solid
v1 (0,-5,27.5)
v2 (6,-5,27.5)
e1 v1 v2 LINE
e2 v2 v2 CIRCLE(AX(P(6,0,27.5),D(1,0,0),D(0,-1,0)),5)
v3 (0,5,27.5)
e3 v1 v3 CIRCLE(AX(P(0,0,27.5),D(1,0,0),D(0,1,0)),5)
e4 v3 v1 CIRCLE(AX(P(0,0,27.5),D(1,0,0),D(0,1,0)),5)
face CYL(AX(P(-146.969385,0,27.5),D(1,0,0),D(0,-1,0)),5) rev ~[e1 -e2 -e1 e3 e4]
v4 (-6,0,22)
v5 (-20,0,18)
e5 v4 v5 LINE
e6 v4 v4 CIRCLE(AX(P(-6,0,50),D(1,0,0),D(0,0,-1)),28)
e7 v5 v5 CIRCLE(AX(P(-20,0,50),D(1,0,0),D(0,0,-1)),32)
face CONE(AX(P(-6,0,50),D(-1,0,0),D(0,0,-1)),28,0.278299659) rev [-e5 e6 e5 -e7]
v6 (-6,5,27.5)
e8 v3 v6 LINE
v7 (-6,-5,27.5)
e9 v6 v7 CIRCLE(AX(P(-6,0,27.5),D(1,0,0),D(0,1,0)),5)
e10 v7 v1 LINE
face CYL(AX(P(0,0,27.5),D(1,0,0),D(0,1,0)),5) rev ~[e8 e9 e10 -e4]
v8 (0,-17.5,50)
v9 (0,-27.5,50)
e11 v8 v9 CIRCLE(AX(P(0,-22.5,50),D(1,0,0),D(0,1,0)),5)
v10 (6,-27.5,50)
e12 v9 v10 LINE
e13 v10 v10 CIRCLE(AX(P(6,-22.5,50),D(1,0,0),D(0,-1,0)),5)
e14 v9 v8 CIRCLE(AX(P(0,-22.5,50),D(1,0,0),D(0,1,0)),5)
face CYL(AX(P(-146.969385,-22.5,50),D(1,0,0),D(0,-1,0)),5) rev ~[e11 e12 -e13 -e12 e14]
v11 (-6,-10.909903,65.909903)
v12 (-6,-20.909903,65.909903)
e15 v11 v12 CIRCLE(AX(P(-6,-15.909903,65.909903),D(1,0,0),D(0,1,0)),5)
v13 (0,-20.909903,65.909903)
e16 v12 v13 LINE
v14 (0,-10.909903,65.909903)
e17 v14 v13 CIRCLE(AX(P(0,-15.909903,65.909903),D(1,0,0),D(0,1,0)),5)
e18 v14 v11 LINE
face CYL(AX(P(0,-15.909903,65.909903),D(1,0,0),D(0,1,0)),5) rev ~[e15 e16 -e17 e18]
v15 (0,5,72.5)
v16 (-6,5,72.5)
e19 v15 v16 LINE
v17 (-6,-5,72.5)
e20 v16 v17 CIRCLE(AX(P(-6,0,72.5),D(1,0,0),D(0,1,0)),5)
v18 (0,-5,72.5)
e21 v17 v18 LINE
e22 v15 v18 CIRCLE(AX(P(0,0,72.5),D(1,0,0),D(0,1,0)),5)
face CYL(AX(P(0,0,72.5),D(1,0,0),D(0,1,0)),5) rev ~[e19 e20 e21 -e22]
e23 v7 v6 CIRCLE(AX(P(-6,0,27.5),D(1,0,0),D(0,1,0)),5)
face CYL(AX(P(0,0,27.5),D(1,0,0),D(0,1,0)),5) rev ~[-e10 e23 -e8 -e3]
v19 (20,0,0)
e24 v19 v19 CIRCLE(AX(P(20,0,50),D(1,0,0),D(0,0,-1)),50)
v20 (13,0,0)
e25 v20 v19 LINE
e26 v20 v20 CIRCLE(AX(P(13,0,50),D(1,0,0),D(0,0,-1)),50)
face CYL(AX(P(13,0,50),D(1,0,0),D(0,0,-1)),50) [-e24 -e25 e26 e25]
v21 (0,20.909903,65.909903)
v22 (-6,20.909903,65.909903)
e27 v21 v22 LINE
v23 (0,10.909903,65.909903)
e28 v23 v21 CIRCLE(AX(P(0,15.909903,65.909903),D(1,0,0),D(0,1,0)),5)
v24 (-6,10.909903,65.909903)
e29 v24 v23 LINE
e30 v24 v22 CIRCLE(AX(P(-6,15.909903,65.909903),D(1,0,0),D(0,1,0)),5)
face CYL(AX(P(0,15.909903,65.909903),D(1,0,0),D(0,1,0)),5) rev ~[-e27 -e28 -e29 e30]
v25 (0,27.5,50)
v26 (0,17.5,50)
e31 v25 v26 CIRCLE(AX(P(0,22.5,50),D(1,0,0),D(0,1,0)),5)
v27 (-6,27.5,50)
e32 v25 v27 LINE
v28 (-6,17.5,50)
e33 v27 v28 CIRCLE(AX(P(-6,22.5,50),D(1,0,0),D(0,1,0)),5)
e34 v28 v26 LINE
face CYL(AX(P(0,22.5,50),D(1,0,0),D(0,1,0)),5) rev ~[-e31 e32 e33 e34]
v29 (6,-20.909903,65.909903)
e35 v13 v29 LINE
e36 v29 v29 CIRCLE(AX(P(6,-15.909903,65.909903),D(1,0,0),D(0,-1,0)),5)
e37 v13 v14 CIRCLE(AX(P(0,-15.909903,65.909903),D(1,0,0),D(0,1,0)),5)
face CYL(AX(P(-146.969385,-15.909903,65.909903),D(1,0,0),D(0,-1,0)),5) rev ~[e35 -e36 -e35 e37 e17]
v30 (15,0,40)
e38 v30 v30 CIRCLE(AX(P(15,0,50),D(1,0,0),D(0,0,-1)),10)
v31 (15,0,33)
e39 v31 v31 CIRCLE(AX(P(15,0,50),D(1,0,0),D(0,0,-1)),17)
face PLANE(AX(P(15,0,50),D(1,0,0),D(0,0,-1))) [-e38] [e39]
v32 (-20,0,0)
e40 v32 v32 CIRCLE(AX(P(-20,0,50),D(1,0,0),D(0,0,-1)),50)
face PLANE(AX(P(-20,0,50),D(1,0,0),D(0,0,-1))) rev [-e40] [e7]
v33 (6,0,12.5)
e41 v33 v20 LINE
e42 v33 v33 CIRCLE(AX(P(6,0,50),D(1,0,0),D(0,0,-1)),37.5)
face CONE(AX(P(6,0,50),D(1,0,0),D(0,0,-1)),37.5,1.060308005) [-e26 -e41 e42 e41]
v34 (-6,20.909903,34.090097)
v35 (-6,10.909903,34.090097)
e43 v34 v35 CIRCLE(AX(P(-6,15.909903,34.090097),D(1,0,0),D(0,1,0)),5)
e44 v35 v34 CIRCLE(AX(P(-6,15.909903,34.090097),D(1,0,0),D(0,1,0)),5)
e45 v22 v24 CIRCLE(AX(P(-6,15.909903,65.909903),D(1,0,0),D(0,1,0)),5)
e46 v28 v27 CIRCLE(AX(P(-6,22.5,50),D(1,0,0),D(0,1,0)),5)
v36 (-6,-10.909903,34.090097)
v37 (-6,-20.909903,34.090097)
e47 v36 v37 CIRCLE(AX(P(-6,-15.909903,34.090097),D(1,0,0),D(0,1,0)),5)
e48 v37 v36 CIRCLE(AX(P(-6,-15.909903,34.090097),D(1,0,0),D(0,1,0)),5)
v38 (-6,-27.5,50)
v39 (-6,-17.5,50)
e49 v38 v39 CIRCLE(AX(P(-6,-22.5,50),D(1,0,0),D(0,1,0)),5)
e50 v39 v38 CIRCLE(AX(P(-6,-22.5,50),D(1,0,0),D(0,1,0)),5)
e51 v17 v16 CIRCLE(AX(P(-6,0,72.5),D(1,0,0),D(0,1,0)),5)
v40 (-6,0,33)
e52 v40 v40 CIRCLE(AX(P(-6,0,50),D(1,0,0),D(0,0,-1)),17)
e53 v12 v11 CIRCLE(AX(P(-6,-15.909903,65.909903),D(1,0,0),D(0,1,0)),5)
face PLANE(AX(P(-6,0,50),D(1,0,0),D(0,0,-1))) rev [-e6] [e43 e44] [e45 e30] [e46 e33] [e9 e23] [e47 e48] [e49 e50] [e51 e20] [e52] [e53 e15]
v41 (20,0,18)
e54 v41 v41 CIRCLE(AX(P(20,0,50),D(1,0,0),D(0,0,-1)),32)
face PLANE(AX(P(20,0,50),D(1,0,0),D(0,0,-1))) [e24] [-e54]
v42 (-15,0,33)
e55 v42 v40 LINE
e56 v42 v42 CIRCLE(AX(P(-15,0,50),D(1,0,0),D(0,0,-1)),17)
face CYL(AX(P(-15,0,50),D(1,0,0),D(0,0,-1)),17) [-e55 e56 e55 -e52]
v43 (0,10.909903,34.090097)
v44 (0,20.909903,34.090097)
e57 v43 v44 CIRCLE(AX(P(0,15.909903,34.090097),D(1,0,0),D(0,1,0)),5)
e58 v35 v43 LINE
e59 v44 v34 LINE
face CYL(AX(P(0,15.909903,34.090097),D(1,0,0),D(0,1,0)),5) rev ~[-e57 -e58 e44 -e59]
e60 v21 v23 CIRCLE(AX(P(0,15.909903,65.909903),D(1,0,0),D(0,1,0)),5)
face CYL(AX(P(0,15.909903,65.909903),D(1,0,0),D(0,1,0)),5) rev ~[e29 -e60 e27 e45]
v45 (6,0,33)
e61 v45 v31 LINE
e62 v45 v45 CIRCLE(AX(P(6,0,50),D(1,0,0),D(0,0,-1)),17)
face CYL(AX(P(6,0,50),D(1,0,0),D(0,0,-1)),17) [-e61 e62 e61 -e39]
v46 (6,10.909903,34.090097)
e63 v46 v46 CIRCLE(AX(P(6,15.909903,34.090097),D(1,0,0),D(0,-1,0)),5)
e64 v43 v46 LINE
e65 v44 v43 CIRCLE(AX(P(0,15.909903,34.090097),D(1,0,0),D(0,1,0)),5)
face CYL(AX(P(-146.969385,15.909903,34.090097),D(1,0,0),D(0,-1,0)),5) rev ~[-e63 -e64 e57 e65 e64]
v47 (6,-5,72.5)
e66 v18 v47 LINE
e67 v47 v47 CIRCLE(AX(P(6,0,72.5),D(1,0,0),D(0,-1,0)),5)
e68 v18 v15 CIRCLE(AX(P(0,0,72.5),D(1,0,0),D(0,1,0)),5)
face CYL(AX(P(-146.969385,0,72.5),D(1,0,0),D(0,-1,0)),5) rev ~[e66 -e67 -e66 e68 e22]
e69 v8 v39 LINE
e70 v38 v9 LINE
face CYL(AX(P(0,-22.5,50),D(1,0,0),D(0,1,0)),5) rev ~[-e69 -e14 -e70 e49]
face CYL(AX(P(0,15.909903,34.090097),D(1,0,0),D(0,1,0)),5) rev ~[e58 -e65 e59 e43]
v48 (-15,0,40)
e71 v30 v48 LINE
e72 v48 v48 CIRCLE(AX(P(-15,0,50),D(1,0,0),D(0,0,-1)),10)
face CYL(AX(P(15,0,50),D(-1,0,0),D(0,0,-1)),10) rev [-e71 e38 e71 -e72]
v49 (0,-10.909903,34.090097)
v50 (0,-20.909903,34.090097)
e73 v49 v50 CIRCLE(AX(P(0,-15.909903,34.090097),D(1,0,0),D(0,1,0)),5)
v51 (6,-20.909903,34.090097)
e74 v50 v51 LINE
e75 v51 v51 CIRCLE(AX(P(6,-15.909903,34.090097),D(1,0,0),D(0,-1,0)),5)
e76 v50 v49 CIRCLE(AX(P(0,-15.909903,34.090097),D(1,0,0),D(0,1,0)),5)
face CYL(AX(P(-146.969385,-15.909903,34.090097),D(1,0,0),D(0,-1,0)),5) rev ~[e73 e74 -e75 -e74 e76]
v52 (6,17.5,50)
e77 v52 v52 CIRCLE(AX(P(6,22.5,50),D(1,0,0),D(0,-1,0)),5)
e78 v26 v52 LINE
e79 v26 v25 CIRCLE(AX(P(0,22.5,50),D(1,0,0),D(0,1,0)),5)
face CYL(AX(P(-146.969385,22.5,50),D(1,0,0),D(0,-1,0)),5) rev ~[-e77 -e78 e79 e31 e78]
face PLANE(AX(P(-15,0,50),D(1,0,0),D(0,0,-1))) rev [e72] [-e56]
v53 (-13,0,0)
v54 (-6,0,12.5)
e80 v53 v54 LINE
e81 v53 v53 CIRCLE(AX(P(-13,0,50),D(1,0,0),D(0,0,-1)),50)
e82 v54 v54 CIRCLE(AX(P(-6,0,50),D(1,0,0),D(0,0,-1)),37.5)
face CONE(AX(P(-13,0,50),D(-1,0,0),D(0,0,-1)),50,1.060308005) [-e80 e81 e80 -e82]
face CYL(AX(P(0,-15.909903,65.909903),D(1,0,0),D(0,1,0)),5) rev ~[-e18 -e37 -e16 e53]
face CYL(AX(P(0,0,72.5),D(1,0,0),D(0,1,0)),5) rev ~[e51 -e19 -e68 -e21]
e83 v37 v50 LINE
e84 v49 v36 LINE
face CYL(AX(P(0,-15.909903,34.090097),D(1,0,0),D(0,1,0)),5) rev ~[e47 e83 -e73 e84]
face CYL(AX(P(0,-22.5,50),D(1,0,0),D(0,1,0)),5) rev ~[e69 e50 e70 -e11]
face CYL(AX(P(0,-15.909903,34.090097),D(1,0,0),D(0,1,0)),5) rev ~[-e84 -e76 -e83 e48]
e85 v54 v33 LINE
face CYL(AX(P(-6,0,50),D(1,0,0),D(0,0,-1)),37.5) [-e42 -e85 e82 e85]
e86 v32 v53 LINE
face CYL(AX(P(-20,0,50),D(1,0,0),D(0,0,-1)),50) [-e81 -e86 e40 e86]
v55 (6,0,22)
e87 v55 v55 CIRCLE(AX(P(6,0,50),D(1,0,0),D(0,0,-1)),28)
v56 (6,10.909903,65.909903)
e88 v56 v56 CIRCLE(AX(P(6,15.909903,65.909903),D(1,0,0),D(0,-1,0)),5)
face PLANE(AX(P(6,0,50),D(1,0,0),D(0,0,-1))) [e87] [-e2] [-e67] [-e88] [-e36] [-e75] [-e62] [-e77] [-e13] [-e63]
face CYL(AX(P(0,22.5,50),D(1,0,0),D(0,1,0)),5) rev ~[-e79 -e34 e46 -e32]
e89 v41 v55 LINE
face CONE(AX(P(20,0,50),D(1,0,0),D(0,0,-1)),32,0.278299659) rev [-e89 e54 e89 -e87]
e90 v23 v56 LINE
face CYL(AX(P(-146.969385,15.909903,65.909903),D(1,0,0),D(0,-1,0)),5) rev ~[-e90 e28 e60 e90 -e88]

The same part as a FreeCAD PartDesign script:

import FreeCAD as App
import Part
import Sketcher

doc = App.newDocument("Part")
body = doc.addObject("PartDesign::Body", "Body")

sketch1 = body.newObject("Sketcher::SketchObject", "Sketch")
sketch1.AttachmentSupport = (doc.getObject("XZ_Plane"), [""])
sketch1.MapMode = "FlatFace"
sketch1.addGeometry([
    Part.LineSegment(App.Vector(-20, 18, 0), App.Vector(-20, 0, 0)),
    Part.LineSegment(App.Vector(-20, 0, 0), App.Vector(-13, 0, 0)),
    Part.LineSegment(App.Vector(-13, 0, 0), App.Vector(-6, 12.5, 0)),
    Part.LineSegment(App.Vector(-6, 12.5, 0), App.Vector(6, 12.5, 0)),
    Part.LineSegment(App.Vector(6, 12.5, 0), App.Vector(13, 0, 0)),
    Part.LineSegment(App.Vector(13, 0, 0), App.Vector(20, 0, 0)),
    Part.LineSegment(App.Vector(20, 0, 0), App.Vector(20, 18, 0)),
    Part.LineSegment(App.Vector(20, 18, 0), App.Vector(6, 22, 0)),
    Part.LineSegment(App.Vector(6, 22, 0), App.Vector(6, 33, 0)),
    Part.LineSegment(App.Vector(6, 33, 0), App.Vector(15, 33, 0)),
    Part.LineSegment(App.Vector(15, 33, 0), App.Vector(15, 40, 0)),
    Part.LineSegment(App.Vector(15, 40, 0), App.Vector(-15, 40, 0)),
    Part.LineSegment(App.Vector(-15, 40, 0), App.Vector(-15, 33, 0)),
    Part.LineSegment(App.Vector(-15, 33, 0), App.Vector(-6, 33, 0)),
    Part.LineSegment(App.Vector(-6, 33, 0), App.Vector(-6, 22, 0)),
    Part.LineSegment(App.Vector(-6, 22, 0), App.Vector(-20, 18, 0)),
], False)
sketch1.addGeometry(Part.LineSegment(App.Vector(-20, 50, 0), App.Vector(20, 50, 0)), True)
sketch1.addConstraint([
    Sketcher.Constraint("Coincident", 0, 2, 1, 1),
    Sketcher.Constraint("Coincident", 1, 2, 2, 1),
    Sketcher.Constraint("Coincident", 2, 2, 3, 1),
    Sketcher.Constraint("Coincident", 3, 2, 4, 1),
    Sketcher.Constraint("Coincident", 4, 2, 5, 1),
    Sketcher.Constraint("Coincident", 5, 2, 6, 1),
    Sketcher.Constraint("Coincident", 6, 2, 7, 1),
    Sketcher.Constraint("Coincident", 7, 2, 8, 1),
    Sketcher.Constraint("Coincident", 8, 2, 9, 1),
    Sketcher.Constraint("Coincident", 9, 2, 10, 1),
    Sketcher.Constraint("Coincident", 10, 2, 11, 1),
    Sketcher.Constraint("Coincident", 11, 2, 12, 1),
    Sketcher.Constraint("Coincident", 12, 2, 13, 1),
    Sketcher.Constraint("Coincident", 13, 2, 14, 1),
    Sketcher.Constraint("Coincident", 14, 2, 15, 1),
    Sketcher.Constraint("Coincident", 15, 2, 0, 1),
    Sketcher.Constraint("Vertical", 0),
    Sketcher.Constraint("Horizontal", 1),
    Sketcher.Constraint("Horizontal", 3),
    Sketcher.Constraint("Horizontal", 5),
    Sketcher.Constraint("Vertical", 6),
    Sketcher.Constraint("Vertical", 8),
    Sketcher.Constraint("Horizontal", 9),
    Sketcher.Constraint("Vertical", 10),
    Sketcher.Constraint("Horizontal", 11),
    Sketcher.Constraint("Vertical", 12),
    Sketcher.Constraint("Horizontal", 13),
    Sketcher.Constraint("Vertical", 14),
    Sketcher.Constraint("Horizontal", 16),
    Sketcher.Constraint("Symmetric", 1, 2, 4, 2, -1, 1),
    Sketcher.Constraint("Symmetric", 0, 2, 5, 2, -2),
    Sketcher.Constraint("Symmetric", 9, 2, 12, 2, -2),
    Sketcher.Constraint("Symmetric", 7, 2, 14, 2, -2),
    Sketcher.Constraint("Horizontal", 6, 2, 15, 2),
    Sketcher.Constraint("Vertical", 3, 2, 7, 2),
    Sketcher.Constraint("Vertical", 2, 2, 13, 2),
    Sketcher.Constraint("Vertical", 15, 2, 16, 1),
    Sketcher.Constraint("Vertical", 6, 2, 16, 2),
    Sketcher.Constraint("Equal", 5, 10),
    Sketcher.Constraint("DistanceX", 1, 1, 1, 2, 7.0),
    Sketcher.Constraint("DistanceX", 3, 1, 3, 2, 12.0),
    Sketcher.Constraint("DistanceX", 9, 1, 9, 2, 9.0),
    Sketcher.Constraint("DistanceX", 16, 1, 16, 2, 40.0),
    Sketcher.Constraint("DistanceY", 0, 2, 0, 1, 18.0),
    Sketcher.Constraint("DistanceY", 8, 1, 8, 2, 11.0),
    Sketcher.Constraint("DistanceY", -1, 1, 7, 2, 22.0),
    Sketcher.Constraint("DistanceY", -1, 1, 16, 1, 50.0),
    Sketcher.Constraint("DistanceY", -1, 1, 2, 2, 12.5),
])
revolution = body.newObject("PartDesign::Revolution", "Revolution")
revolution.Profile = sketch1
revolution.ReferenceAxis = (sketch1, ["Axis0"])
revolution.Angle = 360

sketch2 = body.newObject("Sketcher::SketchObject", "Sketch001")
sketch2.AttachmentSupport = (doc.getObject("YZ_Plane"), [""])
sketch2.MapMode = "FlatFace"
sketch2.addGeometry([
    Part.Circle(App.Vector(22.5, 50, 0), App.Vector(0, 0, 1), 5),
    Part.Circle(App.Vector(15.909903, 65.909903, 0), App.Vector(0, 0, 1), 5),
    Part.Circle(App.Vector(0, 72.5, 0), App.Vector(0, 0, 1), 5),
    Part.Circle(App.Vector(-15.909903, 65.909903, 0), App.Vector(0, 0, 1), 5),
    Part.Circle(App.Vector(-22.5, 50, 0), App.Vector(0, 0, 1), 5),
    Part.Circle(App.Vector(-15.909903, 34.090097, 0), App.Vector(0, 0, 1), 5),
    Part.Circle(App.Vector(0, 27.5, 0), App.Vector(0, 0, 1), 5),
    Part.Circle(App.Vector(15.909903, 34.090097, 0), App.Vector(0, 0, 1), 5),
], False)
sketch2.addConstraint([
    Sketcher.Constraint("Equal", 0, 1),
    Sketcher.Constraint("Equal", 1, 2),
    Sketcher.Constraint("Equal", 2, 3),
    Sketcher.Constraint("Equal", 3, 4),
    Sketcher.Constraint("Equal", 4, 5),
    Sketcher.Constraint("Equal", 5, 6),
    Sketcher.Constraint("Equal", 6, 7),
    Sketcher.Constraint("Symmetric", 1, 3, 3, 3, -2),
    Sketcher.Constraint("Symmetric", 0, 3, 4, 3, -2),
    Sketcher.Constraint("Symmetric", 5, 3, 7, 3, -2),
    Sketcher.Constraint("PointOnObject", 2, 3, -2),
    Sketcher.Constraint("PointOnObject", 6, 3, -2),
    Sketcher.Constraint("Vertical", 3, 3, 5, 3),
    Sketcher.Constraint("Diameter", 0, 10.0),
    Sketcher.Constraint("DistanceY", -1, 1, 0, 3, 50.0),
    Sketcher.Constraint("DistanceX", 4, 3, 0, 3, 45.0),
    Sketcher.Constraint("DistanceY", -1, 1, 2, 3, 72.5),
    Sketcher.Constraint("DistanceY", -1, 1, 6, 3, 27.5),
    Sketcher.Constraint("DistanceX", -1, 1, 1, 3, 15.909903),
    Sketcher.Constraint("DistanceY", -1, 1, 1, 3, 65.909903),
    Sketcher.Constraint("DistanceY", -1, 1, 5, 3, 34.090097),
])
pocket1 = body.newObject("PartDesign::Pocket", "Pocket")
pocket1.Profile = sketch2
pocket1.Type = "ThroughAll"

sketch3 = body.newObject("Sketcher::SketchObject", "Sketch002")
sketch3.AttachmentSupport = (doc.getObject("YZ_Plane"), [""])
sketch3.MapMode = "FlatFace"
sketch3.addGeometry([
    Part.Circle(App.Vector(0, 72.5, 0), App.Vector(0, 0, 1), 5),
    Part.Circle(App.Vector(15.909903, 65.909903, 0), App.Vector(0, 0, 1), 5),
    Part.Circle(App.Vector(22.5, 50, 0), App.Vector(0, 0, 1), 5),
    Part.Circle(App.Vector(15.909903, 34.090097, 0), App.Vector(0, 0, 1), 5),
    Part.Circle(App.Vector(0, 27.5, 0), App.Vector(0, 0, 1), 5),
    Part.Circle(App.Vector(-15.909903, 34.090097, 0), App.Vector(0, 0, 1), 5),
    Part.Circle(App.Vector(-22.5, 50, 0), App.Vector(0, 0, 1), 5),
    Part.Circle(App.Vector(-15.909903, 65.909903, 0), App.Vector(0, 0, 1), 5),
], False)
sketch3.addConstraint([
    Sketcher.Constraint("Equal", 0, 1),
    Sketcher.Constraint("Equal", 1, 2),
    Sketcher.Constraint("Equal", 2, 3),
    Sketcher.Constraint("Equal", 3, 4),
    Sketcher.Constraint("Equal", 4, 5),
    Sketcher.Constraint("Equal", 5, 6),
    Sketcher.Constraint("Equal", 6, 7),
    Sketcher.Constraint("Symmetric", 3, 3, 5, 3, -2),
    Sketcher.Constraint("Symmetric", 2, 3, 6, 3, -2),
    Sketcher.Constraint("Symmetric", 1, 3, 7, 3, -2),
    Sketcher.Constraint("PointOnObject", 0, 3, -2),
    Sketcher.Constraint("PointOnObject", 4, 3, -2),
    Sketcher.Constraint("Vertical", 1, 3, 3, 3),
    Sketcher.Constraint("Diameter", 0, 10.0),
    Sketcher.Constraint("DistanceY", -1, 1, 2, 3, 50.0),
    Sketcher.Constraint("DistanceY", 4, 3, 0, 3, 45.0),
    Sketcher.Constraint("DistanceY", -1, 1, 0, 3, 72.5),
    Sketcher.Constraint("DistanceX", -1, 1, 2, 3, 22.5),
    Sketcher.Constraint("DistanceX", -1, 1, 1, 3, 15.909903),
    Sketcher.Constraint("DistanceY", -1, 1, 1, 3, 65.909903),
    Sketcher.Constraint("DistanceY", -1, 1, 3, 3, 34.090097),
])
doc.recompute()
hole = body.newObject("PartDesign::Hole", "Hole")
hole.Profile = sketch3
hole.ThreadType = "None"
hole.Diameter = 10
hole.DepthType = "ThroughAll"
hole.Reversed = True

doc.recompute()
